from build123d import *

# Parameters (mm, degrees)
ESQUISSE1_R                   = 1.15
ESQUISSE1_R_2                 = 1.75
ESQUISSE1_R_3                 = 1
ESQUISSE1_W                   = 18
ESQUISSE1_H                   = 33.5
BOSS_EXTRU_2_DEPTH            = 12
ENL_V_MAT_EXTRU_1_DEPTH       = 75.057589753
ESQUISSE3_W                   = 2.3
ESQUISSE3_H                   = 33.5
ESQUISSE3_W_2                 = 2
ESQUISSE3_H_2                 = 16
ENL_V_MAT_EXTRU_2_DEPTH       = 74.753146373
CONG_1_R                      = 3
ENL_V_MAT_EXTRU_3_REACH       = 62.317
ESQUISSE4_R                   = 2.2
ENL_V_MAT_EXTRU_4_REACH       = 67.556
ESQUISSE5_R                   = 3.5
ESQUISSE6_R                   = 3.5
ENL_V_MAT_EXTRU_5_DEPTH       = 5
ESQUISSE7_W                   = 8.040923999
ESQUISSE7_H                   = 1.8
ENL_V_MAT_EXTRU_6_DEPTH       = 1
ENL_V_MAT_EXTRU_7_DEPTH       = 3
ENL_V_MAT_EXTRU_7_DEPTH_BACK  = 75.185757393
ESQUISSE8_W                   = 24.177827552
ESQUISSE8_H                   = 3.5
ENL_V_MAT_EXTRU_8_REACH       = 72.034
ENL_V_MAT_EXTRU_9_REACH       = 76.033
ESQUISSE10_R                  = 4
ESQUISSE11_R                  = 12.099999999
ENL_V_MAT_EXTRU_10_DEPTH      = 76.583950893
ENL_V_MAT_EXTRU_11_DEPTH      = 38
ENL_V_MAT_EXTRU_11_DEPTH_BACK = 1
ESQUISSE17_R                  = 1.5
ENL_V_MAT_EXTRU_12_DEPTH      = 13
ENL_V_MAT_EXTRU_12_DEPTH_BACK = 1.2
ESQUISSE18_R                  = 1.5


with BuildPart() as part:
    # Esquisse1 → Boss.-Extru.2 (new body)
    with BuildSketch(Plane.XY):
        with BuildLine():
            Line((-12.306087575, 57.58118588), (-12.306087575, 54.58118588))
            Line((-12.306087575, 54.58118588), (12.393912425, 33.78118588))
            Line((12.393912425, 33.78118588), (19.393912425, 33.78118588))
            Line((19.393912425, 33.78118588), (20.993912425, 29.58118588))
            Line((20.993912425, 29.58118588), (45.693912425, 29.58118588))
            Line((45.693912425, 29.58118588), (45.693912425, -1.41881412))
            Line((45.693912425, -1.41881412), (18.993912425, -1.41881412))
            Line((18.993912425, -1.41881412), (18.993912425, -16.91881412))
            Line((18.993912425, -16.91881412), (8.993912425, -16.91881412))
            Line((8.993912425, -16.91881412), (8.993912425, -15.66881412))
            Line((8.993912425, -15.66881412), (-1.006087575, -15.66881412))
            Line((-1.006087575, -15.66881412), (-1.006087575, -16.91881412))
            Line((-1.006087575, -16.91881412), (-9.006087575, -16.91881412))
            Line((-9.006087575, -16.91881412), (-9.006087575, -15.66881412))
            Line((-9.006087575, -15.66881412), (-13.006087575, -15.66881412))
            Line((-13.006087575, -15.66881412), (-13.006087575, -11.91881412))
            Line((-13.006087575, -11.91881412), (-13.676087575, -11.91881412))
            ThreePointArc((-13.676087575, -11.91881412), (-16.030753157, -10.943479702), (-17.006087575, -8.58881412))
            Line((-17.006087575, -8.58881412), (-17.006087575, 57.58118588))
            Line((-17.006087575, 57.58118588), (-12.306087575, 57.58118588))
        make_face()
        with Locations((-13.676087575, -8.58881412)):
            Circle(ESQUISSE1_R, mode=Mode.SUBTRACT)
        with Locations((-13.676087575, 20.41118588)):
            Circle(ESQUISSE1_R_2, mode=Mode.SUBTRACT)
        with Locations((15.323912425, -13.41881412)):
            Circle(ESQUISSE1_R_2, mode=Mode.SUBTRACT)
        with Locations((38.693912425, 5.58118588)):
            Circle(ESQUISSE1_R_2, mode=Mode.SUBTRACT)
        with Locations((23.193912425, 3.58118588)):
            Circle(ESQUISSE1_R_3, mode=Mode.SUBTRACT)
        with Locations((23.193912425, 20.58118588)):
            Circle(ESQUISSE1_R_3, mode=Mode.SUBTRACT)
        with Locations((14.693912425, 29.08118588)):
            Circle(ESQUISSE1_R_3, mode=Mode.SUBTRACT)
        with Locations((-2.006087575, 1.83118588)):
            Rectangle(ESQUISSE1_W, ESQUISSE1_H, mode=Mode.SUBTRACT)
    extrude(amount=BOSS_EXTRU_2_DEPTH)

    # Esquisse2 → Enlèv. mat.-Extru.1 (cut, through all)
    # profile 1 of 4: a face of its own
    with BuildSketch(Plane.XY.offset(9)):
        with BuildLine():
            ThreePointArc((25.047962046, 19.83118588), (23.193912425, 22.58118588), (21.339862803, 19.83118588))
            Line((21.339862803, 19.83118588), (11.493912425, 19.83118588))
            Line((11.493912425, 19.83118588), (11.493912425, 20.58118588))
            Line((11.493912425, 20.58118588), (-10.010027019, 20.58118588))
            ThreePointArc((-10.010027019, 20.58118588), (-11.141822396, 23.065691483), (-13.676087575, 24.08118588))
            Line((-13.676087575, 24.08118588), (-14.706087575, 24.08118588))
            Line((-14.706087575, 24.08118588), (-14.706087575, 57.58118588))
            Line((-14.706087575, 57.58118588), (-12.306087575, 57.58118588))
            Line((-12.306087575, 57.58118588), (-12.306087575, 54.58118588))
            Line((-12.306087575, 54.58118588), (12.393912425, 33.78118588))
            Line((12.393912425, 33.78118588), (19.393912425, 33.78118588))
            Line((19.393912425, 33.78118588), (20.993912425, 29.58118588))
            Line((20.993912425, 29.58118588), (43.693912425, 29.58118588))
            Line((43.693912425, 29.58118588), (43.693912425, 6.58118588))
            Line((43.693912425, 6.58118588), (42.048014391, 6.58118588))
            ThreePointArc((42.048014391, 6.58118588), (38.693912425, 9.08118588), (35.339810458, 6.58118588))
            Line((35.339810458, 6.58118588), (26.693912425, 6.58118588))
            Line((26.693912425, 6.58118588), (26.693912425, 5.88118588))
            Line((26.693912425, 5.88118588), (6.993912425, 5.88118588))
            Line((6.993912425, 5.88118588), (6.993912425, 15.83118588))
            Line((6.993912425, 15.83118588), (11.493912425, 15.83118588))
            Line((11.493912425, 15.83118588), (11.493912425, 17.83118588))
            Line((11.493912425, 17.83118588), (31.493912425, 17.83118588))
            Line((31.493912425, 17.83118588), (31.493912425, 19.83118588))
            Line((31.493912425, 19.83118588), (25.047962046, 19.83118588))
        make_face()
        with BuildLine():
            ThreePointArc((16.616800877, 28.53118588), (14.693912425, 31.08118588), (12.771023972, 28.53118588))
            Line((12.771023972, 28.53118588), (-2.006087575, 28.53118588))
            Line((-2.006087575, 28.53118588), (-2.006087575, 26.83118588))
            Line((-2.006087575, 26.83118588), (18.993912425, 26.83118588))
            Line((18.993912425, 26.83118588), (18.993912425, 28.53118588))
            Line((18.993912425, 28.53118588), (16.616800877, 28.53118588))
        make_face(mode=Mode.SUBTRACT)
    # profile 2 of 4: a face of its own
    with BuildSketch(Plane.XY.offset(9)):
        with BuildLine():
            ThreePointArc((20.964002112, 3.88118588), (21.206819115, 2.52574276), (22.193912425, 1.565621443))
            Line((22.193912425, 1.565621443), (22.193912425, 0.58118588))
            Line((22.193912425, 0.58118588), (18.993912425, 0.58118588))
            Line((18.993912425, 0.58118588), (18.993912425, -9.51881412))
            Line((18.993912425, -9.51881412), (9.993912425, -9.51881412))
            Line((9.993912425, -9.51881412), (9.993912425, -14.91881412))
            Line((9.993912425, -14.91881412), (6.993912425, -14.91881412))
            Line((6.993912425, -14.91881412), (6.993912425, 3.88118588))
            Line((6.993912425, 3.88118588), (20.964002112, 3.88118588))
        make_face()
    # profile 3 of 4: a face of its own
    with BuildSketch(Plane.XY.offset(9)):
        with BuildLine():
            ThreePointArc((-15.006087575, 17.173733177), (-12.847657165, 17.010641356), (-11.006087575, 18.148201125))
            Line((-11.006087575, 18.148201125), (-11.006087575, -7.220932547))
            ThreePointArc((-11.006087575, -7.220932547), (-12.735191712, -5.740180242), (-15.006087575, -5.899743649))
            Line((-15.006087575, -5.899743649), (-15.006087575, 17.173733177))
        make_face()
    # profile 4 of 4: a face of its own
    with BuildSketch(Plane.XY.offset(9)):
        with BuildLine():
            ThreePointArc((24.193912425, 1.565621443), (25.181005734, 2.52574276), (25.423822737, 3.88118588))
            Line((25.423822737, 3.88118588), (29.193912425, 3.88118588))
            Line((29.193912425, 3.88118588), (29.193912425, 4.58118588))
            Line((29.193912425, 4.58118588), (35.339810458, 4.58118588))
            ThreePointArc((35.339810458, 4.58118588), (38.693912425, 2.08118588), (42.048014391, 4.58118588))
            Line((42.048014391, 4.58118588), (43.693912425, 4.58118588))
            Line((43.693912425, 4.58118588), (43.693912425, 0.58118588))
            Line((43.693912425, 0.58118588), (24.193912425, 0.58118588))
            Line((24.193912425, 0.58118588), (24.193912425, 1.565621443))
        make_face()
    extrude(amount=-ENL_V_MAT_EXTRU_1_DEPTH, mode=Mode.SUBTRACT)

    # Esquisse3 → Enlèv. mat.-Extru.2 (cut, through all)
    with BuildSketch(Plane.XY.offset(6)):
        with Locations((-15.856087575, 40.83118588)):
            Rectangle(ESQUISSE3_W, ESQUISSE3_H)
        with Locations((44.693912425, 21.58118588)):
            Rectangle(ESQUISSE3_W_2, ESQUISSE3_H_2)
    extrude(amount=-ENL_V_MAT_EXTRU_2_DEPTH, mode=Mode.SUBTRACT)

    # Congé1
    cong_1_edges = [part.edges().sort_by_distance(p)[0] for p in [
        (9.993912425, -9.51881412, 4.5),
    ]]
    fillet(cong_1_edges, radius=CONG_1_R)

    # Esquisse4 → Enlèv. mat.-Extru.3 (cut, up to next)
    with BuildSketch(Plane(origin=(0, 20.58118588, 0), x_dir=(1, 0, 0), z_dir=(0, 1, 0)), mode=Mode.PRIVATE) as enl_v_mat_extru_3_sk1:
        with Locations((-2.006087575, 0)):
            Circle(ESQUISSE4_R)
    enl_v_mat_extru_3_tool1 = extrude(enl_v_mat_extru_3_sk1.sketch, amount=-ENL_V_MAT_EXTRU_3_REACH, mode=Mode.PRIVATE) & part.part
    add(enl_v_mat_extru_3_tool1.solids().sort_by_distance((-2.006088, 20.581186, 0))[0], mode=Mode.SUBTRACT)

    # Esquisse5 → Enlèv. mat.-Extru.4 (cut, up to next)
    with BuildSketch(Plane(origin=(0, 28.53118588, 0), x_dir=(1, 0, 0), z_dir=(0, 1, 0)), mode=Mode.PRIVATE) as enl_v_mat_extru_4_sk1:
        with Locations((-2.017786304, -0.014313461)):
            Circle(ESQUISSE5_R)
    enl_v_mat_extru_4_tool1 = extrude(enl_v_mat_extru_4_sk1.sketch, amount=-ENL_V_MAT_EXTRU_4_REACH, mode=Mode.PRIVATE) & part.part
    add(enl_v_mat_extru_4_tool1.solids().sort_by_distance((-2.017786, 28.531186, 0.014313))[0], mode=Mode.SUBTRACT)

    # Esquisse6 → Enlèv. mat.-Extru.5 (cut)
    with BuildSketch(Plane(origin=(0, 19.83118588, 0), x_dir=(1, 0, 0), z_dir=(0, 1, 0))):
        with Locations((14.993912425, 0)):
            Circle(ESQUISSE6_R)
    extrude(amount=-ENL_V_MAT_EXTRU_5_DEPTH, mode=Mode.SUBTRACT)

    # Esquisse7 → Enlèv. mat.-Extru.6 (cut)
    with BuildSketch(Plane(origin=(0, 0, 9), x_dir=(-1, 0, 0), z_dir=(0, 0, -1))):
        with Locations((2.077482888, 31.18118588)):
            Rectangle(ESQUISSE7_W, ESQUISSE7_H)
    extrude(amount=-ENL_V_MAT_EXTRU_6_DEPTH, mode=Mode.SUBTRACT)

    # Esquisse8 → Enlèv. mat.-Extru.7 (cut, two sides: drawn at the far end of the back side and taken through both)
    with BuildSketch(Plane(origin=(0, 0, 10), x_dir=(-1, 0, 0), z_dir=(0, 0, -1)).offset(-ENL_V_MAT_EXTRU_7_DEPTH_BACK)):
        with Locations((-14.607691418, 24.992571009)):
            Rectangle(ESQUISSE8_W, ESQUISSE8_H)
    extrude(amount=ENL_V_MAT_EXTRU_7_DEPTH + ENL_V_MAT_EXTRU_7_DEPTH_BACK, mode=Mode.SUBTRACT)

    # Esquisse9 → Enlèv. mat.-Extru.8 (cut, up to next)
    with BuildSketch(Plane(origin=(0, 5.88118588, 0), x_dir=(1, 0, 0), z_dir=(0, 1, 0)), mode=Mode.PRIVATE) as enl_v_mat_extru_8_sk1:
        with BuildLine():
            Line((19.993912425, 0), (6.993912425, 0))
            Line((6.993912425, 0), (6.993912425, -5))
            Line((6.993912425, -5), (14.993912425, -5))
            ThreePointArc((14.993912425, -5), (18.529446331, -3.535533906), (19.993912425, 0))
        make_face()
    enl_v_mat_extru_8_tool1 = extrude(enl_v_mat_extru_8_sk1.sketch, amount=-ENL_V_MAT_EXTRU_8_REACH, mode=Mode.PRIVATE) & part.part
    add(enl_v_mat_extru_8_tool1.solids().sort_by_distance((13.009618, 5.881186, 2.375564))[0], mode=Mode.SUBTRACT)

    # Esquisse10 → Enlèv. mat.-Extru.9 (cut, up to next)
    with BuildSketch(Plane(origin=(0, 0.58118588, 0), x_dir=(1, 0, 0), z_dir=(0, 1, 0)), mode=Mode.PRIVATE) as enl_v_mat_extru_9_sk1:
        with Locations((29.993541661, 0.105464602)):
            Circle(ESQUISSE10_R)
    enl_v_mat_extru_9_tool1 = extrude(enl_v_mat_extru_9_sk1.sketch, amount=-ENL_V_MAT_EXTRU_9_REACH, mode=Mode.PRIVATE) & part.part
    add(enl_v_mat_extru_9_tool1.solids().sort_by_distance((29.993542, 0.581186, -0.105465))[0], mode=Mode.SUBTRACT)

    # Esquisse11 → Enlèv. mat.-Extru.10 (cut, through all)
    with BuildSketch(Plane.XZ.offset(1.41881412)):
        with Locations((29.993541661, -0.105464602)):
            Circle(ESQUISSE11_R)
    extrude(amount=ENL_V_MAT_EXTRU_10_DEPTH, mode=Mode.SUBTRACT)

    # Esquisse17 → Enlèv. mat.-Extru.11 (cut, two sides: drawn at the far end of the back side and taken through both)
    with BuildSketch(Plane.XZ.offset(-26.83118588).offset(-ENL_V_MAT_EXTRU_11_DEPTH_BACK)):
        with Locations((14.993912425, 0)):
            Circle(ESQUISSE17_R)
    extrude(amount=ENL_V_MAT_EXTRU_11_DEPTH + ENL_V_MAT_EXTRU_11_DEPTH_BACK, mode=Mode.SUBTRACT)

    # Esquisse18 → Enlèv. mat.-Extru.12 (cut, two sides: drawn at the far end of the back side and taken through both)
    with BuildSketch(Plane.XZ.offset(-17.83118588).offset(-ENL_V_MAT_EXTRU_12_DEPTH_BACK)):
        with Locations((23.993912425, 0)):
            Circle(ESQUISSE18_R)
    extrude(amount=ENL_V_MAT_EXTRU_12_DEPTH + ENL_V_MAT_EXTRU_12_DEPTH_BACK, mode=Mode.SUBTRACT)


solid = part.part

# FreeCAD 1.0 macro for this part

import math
import FreeCAD as App
import Part
import Sketcher

V = App.Vector
Q = App.Units.Quantity


def edges_at(feature, points):
    """Names of the edges that pass closest to the given points."""
    edges = feature.Shape.Edges
    near = lambda p: min(range(len(edges)), key=lambda i: edges[i].distToShape(Part.Vertex(*p))[0])
    return sorted({f"Edge{near(p) + 1}" for p in points})


def add_polygon(sketch, points):
    """Adds a closed chain of lines whose ends are joined by coincident constraints."""
    first, n = sketch.GeometryCount, len(points)
    for a, b in zip(points, points[1:] + points[:1]):
        sketch.addGeometry(Part.LineSegment(App.Vector(*a, 0), App.Vector(*b, 0)), False)
    for i in range(n):
        sketch.addConstraint(Sketcher.Constraint("Coincident", first + i, 2, first + (i + 1) % n, 1))

doc = App.newDocument("Part")
body = doc.addObject("PartDesign::Body", "Body")

# Sketch on XY plane
sketch1 = doc.addObject("Sketcher::SketchObject", "Sketch")
body.addObject(sketch1)
sketch1.AttachmentSupport = (doc.XY_Plane, [""])
sketch1.MapMode = "FlatFace"
sketch1.addGeometry(Part.LineSegment(V(-12.3, 54.6, 0), V(-12.3, 57.6, 0)), False)  # 0
sketch1.addGeometry(Part.LineSegment(V(-12.3, 57.6, 0), V(-17, 57.6, 0)), False)  # 1
sketch1.addGeometry(Part.LineSegment(V(-17, 57.6, 0), V(-17, -8.6, 0)), False)  # 2
sketch1.addGeometry(Part.ArcOfCircle(Part.Circle(V(-13.7, -8.6, 0), V(0, 0, 1), 3.3), math.radians(180), math.radians(270)), False)  # 3
sketch1.addGeometry(Part.LineSegment(V(-13.7, -11.9, 0), V(-13, -11.9, 0)), False)  # 4
sketch1.addGeometry(Part.LineSegment(V(-13, -11.9, 0), V(-13, -15.7, 0)), False)  # 5
sketch1.addGeometry(Part.LineSegment(V(-13, -15.7, 0), V(-9, -15.7, 0)), False)  # 6
sketch1.addGeometry(Part.LineSegment(V(-9, -15.7, 0), V(-9, -16.9, 0)), False)  # 7
sketch1.addGeometry(Part.LineSegment(V(-9, -16.9, 0), V(-1, -16.9, 0)), False)  # 8
sketch1.addGeometry(Part.LineSegment(V(-1, -16.9, 0), V(-1, -15.7, 0)), False)  # 9
sketch1.addGeometry(Part.LineSegment(V(-1, -15.7, 0), V(9, -15.7, 0)), False)  # 10
sketch1.addGeometry(Part.LineSegment(V(9, -15.7, 0), V(9, -16.9, 0)), False)  # 11
sketch1.addGeometry(Part.LineSegment(V(9, -16.9, 0), V(19, -16.9, 0)), False)  # 12
sketch1.addGeometry(Part.LineSegment(V(19, -16.9, 0), V(19, -1.4, 0)), False)  # 13
sketch1.addGeometry(Part.LineSegment(V(19, -1.4, 0), V(45.7, -1.4, 0)), False)  # 14
sketch1.addGeometry(Part.LineSegment(V(45.7, -1.4, 0), V(45.7, 29.6, 0)), False)  # 15
sketch1.addGeometry(Part.LineSegment(V(45.7, 29.6, 0), V(21, 29.6, 0)), False)  # 16
sketch1.addGeometry(Part.LineSegment(V(21, 29.6, 0), V(19.4, 33.8, 0)), False)  # 17
sketch1.addGeometry(Part.LineSegment(V(19.4, 33.8, 0), V(12.4, 33.8, 0)), False)  # 18
sketch1.addGeometry(Part.LineSegment(V(12.4, 33.8, 0), V(-12.3, 54.6, 0)), False)  # 19
sketch1.addGeometry(Part.Circle(V(15.3, -13.4, 0), V(0, 0, 1), 1.8), False)  # 20
sketch1.addGeometry(Part.Circle(V(38.7, 5.6, 0), V(0, 0, 1), 1.8), False)  # 21
sketch1.addGeometry(Part.Circle(V(23.2, 3.6, 0), V(0, 0, 1), 1), False)  # 22
sketch1.addGeometry(Part.Circle(V(-13.7, -8.6, 0), V(0, 0, 1), 1.1), False)  # 23
add_polygon(sketch1, [(-11, -14.9), (-11, 18.6), (7, 18.6), (7, -14.9)])  # lines 24-27
sketch1.addGeometry(Part.Circle(V(23.2, 20.6, 0), V(0, 0, 1), 1), False)  # 28
sketch1.addGeometry(Part.Circle(V(14.7, 29.1, 0), V(0, 0, 1), 1), False)  # 29
sketch1.addGeometry(Part.Circle(V(-13.7, 20.4, 0), V(0, 0, 1), 1.8), False)  # 30
sketch1.addConstraint([
    Sketcher.Constraint("Coincident", 0, 2, 1, 1),
    Sketcher.Constraint("Coincident", 1, 2, 2, 1),
    Sketcher.Constraint("Tangent", 2, 2, 3, 1),
    Sketcher.Constraint("Tangent", 3, 2, 4, 1),
    Sketcher.Constraint("Coincident", 4, 2, 5, 1),
    Sketcher.Constraint("Coincident", 5, 2, 6, 1),
    Sketcher.Constraint("Coincident", 6, 2, 7, 1),
    Sketcher.Constraint("Coincident", 7, 2, 8, 1),
    Sketcher.Constraint("Coincident", 8, 2, 9, 1),
    Sketcher.Constraint("Coincident", 9, 2, 10, 1),
    Sketcher.Constraint("Coincident", 10, 2, 11, 1),
    Sketcher.Constraint("Coincident", 11, 2, 12, 1),
    Sketcher.Constraint("Coincident", 12, 2, 13, 1),
    Sketcher.Constraint("Coincident", 13, 2, 14, 1),
    Sketcher.Constraint("Coincident", 14, 2, 15, 1),
    Sketcher.Constraint("Coincident", 15, 2, 16, 1),
    Sketcher.Constraint("Coincident", 16, 2, 17, 1),
    Sketcher.Constraint("Coincident", 17, 2, 18, 1),
    Sketcher.Constraint("Coincident", 18, 2, 19, 1),
    Sketcher.Constraint("Coincident", 19, 2, 0, 1),
    Sketcher.Constraint("Vertical", 0),
    Sketcher.Constraint("Horizontal", 1),
    Sketcher.Constraint("Vertical", 2),
    Sketcher.Constraint("Horizontal", 4),
    Sketcher.Constraint("Vertical", 5),
    Sketcher.Constraint("Horizontal", 6),
    Sketcher.Constraint("Vertical", 7),
    Sketcher.Constraint("Horizontal", 8),
    Sketcher.Constraint("Vertical", 9),
    Sketcher.Constraint("Horizontal", 10),
    Sketcher.Constraint("Vertical", 11),
    Sketcher.Constraint("Horizontal", 12),
    Sketcher.Constraint("Vertical", 13),
    Sketcher.Constraint("Horizontal", 14),
    Sketcher.Constraint("Vertical", 15),
    Sketcher.Constraint("Horizontal", 16),
    Sketcher.Constraint("Horizontal", 18),
    Sketcher.Constraint("Vertical", 24),
    Sketcher.Constraint("Horizontal", 25),
    Sketcher.Constraint("Vertical", 26),
    Sketcher.Constraint("Horizontal", 27),
    Sketcher.Constraint("Coincident", 23, 3, 3, 3),
    Sketcher.Constraint("Equal", 20, 21),
    Sketcher.Constraint("Equal", 22, 28),
    Sketcher.Constraint("Equal", 28, 29),
    Sketcher.Constraint("Equal", 21, 30),
    Sketcher.Constraint("Horizontal", 6, 2, 9, 2),
    Sketcher.Constraint("Horizontal", 8, 2, 11, 2),
    Sketcher.Constraint("Vertical", 22, 3, 28, 3),
    Sketcher.Constraint("Vertical", 23, 3, 30, 3),
    Sketcher.Constraint("Equal", 10, 12),
    Sketcher.Constraint("Diameter", 22, Q("2 mm")),
    Sketcher.Constraint("Diameter", 20, Q("3.5 mm")),
    Sketcher.Constraint("Diameter", 23, Q("2.3 mm")),
    Sketcher.Constraint("DistanceX", 6, 1, 6, 2, Q("4 mm")),
    Sketcher.Constraint("DistanceX", 8, 1, 8, 2, Q("8 mm")),
    Sketcher.Constraint("DistanceX", 10, 1, 10, 2, Q("10 mm")),
    Sketcher.Constraint("DistanceX", 18, 2, 18, 1, Q("7 mm")),
    Sketcher.Constraint("DistanceX", 25, 1, 25, 2, Q("18 mm")),
    Sketcher.Constraint("DistanceY", 0, 1, 0, 2, Q("3 mm")),
    Sketcher.Constraint("DistanceY", 15, 1, 15, 2, Q("31 mm")),
    Sketcher.Constraint("Radius", 3, Q("3.33 mm")),
    Sketcher.Constraint("DistanceX", 1, 2, 1, 1, Q("4.7 mm")),
    Sketcher.Constraint("DistanceX", 14, 1, 14, 2, Q("26.7 mm")),
    Sketcher.Constraint("DistanceX", 16, 2, 16, 1, Q("24.7 mm")),
    Sketcher.Constraint("DistanceY", 13, 1, 13, 2, Q("15.5 mm")),
    Sketcher.Constraint("DistanceY", 24, 1, 24, 2, Q("33.5 mm")),
    Sketcher.Constraint("DistanceX", 3, 3, 20, 3, Q("29 mm")),
    Sketcher.Constraint("DistanceY", 20, 3, 21, 3, Q("19 mm")),
    Sketcher.Constraint("DistanceY", 22, 3, 21, 3, Q("2 mm")),
    Sketcher.Constraint("DistanceY", 22, 3, 28, 3, Q("17 mm")),
    Sketcher.Constraint("DistanceX", 29, 3, 21, 3, Q("24 mm")),
    Sketcher.Constraint("DistanceY", 23, 3, 30, 3, Q("29 mm")),
    Sketcher.Constraint("DistanceX", 0, 2, 29, 3, Q("27 mm")),
    Sketcher.Constraint("DistanceY", 28, 3, 0, 2, Q("37 mm")),
    Sketcher.Constraint("DistanceX", 2, 2, 4, 2, Q("4 mm")),
    Sketcher.Constraint("DistanceY", 7, 2, 4, 2, Q("5 mm")),
    Sketcher.Constraint("DistanceY", 13, 2, 22, 3, Q("5 mm")),
    Sketcher.Constraint("DistanceX", 2, 2, 24, 2, Q("6 mm")),
    Sketcher.Constraint("DistanceY", 25, 2, 28, 3, Q("2 mm")),
    Sketcher.Constraint("DistanceY", 5, 2, 5, 1, Q("3.75 mm")),
    Sketcher.Constraint("DistanceX", 22, 3, 21, 3, Q("15.5 mm")),
    Sketcher.Constraint("DistanceY", 28, 3, 29, 3, Q("8.5 mm")),
    Sketcher.Constraint("DistanceX", 17, 2, 16, 2, Q("1.6 mm")),
    Sketcher.Constraint("DistanceY", 16, 2, 17, 2, Q("4.2 mm")),
    Sketcher.Constraint("DistanceX", 3, 3, -1, 1, Q("13.676088 mm")),
    Sketcher.Constraint("DistanceY", 3, 3, -1, 1, Q("8.588814 mm")),
])
pad1 = doc.addObject("PartDesign::Pad", "Pad")
body.addObject(pad1)
pad1.Profile = sketch1
pad1.Length = 12

# Sketch on XY plane
sketch2 = doc.addObject("Sketcher::SketchObject", "Sketch001")
body.addObject(sketch2)
sketch2.AttachmentSupport = (doc.XY_Plane, [""])
sketch2.MapMode = "FlatFace"
sketch2.AttachmentOffset = App.Placement(V(0, 0, 9), App.Rotation())
sketch2.addGeometry([
    Part.ArcOfCircle(Part.Circle(V(23.193912, 20.581186, 0), V(0, 0, 1), 2), math.radians(-22.024313), math.radians(202.024313)),  # 0
    Part.LineSegment(V(25.047962, 19.831186, 0), V(31.493912, 19.831186, 0)),  # 1
    Part.LineSegment(V(31.493912, 19.831186, 0), V(31.493912, 17.831186, 0)),  # 2
    Part.LineSegment(V(31.493912, 17.831186, 0), V(11.493912, 17.831186, 0)),  # 3
    Part.LineSegment(V(11.493912, 17.831186, 0), V(11.493912, 15.831186, 0)),  # 4
    Part.LineSegment(V(11.493912, 15.831186, 0), V(6.993912, 15.831186, 0)),  # 5
    Part.LineSegment(V(6.993912, 15.831186, 0), V(6.993912, 5.881186, 0)),  # 6
    Part.LineSegment(V(6.993912, 5.881186, 0), V(26.693912, 5.881186, 0)),  # 7
    Part.LineSegment(V(26.693912, 5.881186, 0), V(26.693912, 6.581186, 0)),  # 8
    Part.LineSegment(V(26.693912, 6.581186, 0), V(35.33981, 6.581186, 0)),  # 9
    Part.ArcOfCircle(Part.Circle(V(38.693912, 5.581186, 0), V(0, 0, 1), 3.5), math.radians(16.60155), math.radians(163.39845)),  # 10
    Part.LineSegment(V(42.048014, 6.581186, 0), V(43.693912, 6.581186, 0)),  # 11
    Part.LineSegment(V(43.693912, 6.581186, 0), V(43.693912, 29.581186, 0)),  # 12
    Part.LineSegment(V(43.693912, 29.581186, 0), V(20.993912, 29.581186, 0)),  # 13
    Part.LineSegment(V(20.993912, 29.581186, 0), V(19.393912, 33.781186, 0)),  # 14
    Part.LineSegment(V(19.393912, 33.781186, 0), V(12.393912, 33.781186, 0)),  # 15
    Part.LineSegment(V(12.393912, 33.781186, 0), V(-12.306088, 54.581186, 0)),  # 16
    Part.LineSegment(V(-12.306088, 54.581186, 0), V(-12.306088, 57.581186, 0)),  # 17
    Part.LineSegment(V(-12.306088, 57.581186, 0), V(-14.706088, 57.581186, 0)),  # 18
    Part.LineSegment(V(-14.706088, 57.581186, 0), V(-14.706088, 24.081186, 0)),  # 19
    Part.LineSegment(V(-14.706088, 24.081186, 0), V(-13.676088, 24.081186, 0)),  # 20
    Part.ArcOfCircle(Part.Circle(V(-13.676088, 20.411186, 0), V(0, 0, 1), 3.67), math.radians(2.654978), math.radians(90)),  # 21
    Part.LineSegment(V(-10.010027, 20.581186, 0), V(11.493912, 20.581186, 0)),  # 22
    Part.LineSegment(V(11.493912, 20.581186, 0), V(11.493912, 19.831186, 0)),  # 23
    Part.LineSegment(V(11.493912, 19.831186, 0), V(21.339863, 19.831186, 0)),  # 24
    Part.LineSegment(V(16.616801, 28.531186, 0), V(18.993912, 28.531186, 0)),  # 25
    Part.LineSegment(V(18.993912, 28.531186, 0), V(18.993912, 26.831186, 0)),  # 26
    Part.LineSegment(V(18.993912, 26.831186, 0), V(-2.006088, 26.831186, 0)),  # 27
    Part.LineSegment(V(-2.006088, 26.831186, 0), V(-2.006088, 28.531186, 0)),  # 28
    Part.LineSegment(V(-2.006088, 28.531186, 0), V(12.771024, 28.531186, 0)),  # 29
    Part.ArcOfCircle(Part.Circle(V(14.693912, 29.081186, 0), V(0, 0, 1), 2), math.radians(-15.962014), math.radians(195.962014)),  # 30
    Part.ArcOfCircle(Part.Circle(V(23.193912, 3.581186, 0), V(0, 0, 1), 2.25), math.radians(172.337744), math.radians(243.6122)),  # 31
    Part.LineSegment(V(20.964002, 3.881186, 0), V(6.993912, 3.881186, 0)),  # 32
    Part.LineSegment(V(6.993912, 3.881186, 0), V(6.993912, -14.918814, 0)),  # 33
    Part.LineSegment(V(6.993912, -14.918814, 0), V(9.993912, -14.918814, 0)),  # 34
    Part.LineSegment(V(9.993912, -14.918814, 0), V(9.993912, -9.518814, 0)),  # 35
    Part.LineSegment(V(9.993912, -9.518814, 0), V(18.993912, -9.518814, 0)),  # 36
    Part.LineSegment(V(18.993912, -9.518814, 0), V(18.993912, 0.581186, 0)),  # 37
    Part.LineSegment(V(18.993912, 0.581186, 0), V(22.193912, 0.581186, 0)),  # 38
    Part.LineSegment(V(22.193912, 0.581186, 0), V(22.193912, 1.565621, 0)),  # 39
    Part.ArcOfCircle(Part.Circle(V(-13.676088, 20.411186, 0), V(0, 0, 1), 3.5), math.radians(-112.333683), math.radians(-40.283271)),  # 40
    Part.LineSegment(V(-15.006088, 17.173733, 0), V(-15.006088, -5.899744, 0)),  # 41
    Part.ArcOfCircle(Part.Circle(V(-13.676088, -8.588814, 0), V(0, 0, 1), 3), math.radians(27.126753), math.radians(116.316755)),  # 42
    Part.LineSegment(V(-11.006088, -7.220933, 0), V(-11.006088, 18.148201, 0)),  # 43
    Part.ArcOfCircle(Part.Circle(V(23.193912, 3.581186, 0), V(0, 0, 1), 2.25), math.radians(-63.6122), math.radians(7.662256)),  # 44
    Part.LineSegment(V(24.193912, 1.565621, 0), V(24.193912, 0.581186, 0)),  # 45
    Part.LineSegment(V(24.193912, 0.581186, 0), V(43.693912, 0.581186, 0)),  # 46
    Part.LineSegment(V(43.693912, 0.581186, 0), V(43.693912, 4.581186, 0)),  # 47
    Part.LineSegment(V(43.693912, 4.581186, 0), V(42.048014, 4.581186, 0)),  # 48
    Part.ArcOfCircle(Part.Circle(V(38.693912, 5.581186, 0), V(0, 0, 1), 3.5), math.radians(-163.39845), math.radians(-16.60155)),  # 49
    Part.LineSegment(V(35.33981, 4.581186, 0), V(29.193912, 4.581186, 0)),  # 50
    Part.LineSegment(V(29.193912, 4.581186, 0), V(29.193912, 3.881186, 0)),  # 51
    Part.LineSegment(V(29.193912, 3.881186, 0), V(25.423823, 3.881186, 0)),  # 52
], False)
sketch2.addConstraint([
    Sketcher.Constraint("Coincident", 0, 1, 1, 1),
    Sketcher.Constraint("Coincident", 1, 2, 2, 1),
    Sketcher.Constraint("Coincident", 2, 2, 3, 1),
    Sketcher.Constraint("Coincident", 3, 2, 4, 1),
    Sketcher.Constraint("Coincident", 4, 2, 5, 1),
    Sketcher.Constraint("Coincident", 5, 2, 6, 1),
    Sketcher.Constraint("Coincident", 6, 2, 7, 1),
    Sketcher.Constraint("Coincident", 7, 2, 8, 1),
    Sketcher.Constraint("Coincident", 8, 2, 9, 1),
    Sketcher.Constraint("Coincident", 9, 2, 10, 2),
    Sketcher.Constraint("Coincident", 10, 1, 11, 1),
    Sketcher.Constraint("Coincident", 11, 2, 12, 1),
    Sketcher.Constraint("Coincident", 12, 2, 13, 1),
    Sketcher.Constraint("Coincident", 13, 2, 14, 1),
    Sketcher.Constraint("Coincident", 14, 2, 15, 1),
    Sketcher.Constraint("Coincident", 15, 2, 16, 1),
    Sketcher.Constraint("Coincident", 16, 2, 17, 1),
    Sketcher.Constraint("Coincident", 17, 2, 18, 1),
    Sketcher.Constraint("Coincident", 18, 2, 19, 1),
    Sketcher.Constraint("Coincident", 19, 2, 20, 1),
    Sketcher.Constraint("Coincident", 20, 2, 21, 2),
    Sketcher.Constraint("Coincident", 21, 1, 22, 1),
    Sketcher.Constraint("Coincident", 22, 2, 23, 1),
    Sketcher.Constraint("Coincident", 23, 2, 24, 1),
    Sketcher.Constraint("Coincident", 24, 2, 0, 2),
    Sketcher.Constraint("Coincident", 25, 2, 26, 1),
    Sketcher.Constraint("Coincident", 26, 2, 27, 1),
    Sketcher.Constraint("Coincident", 27, 2, 28, 1),
    Sketcher.Constraint("Coincident", 28, 2, 29, 1),
    Sketcher.Constraint("Coincident", 29, 2, 30, 2),
    Sketcher.Constraint("Coincident", 30, 1, 25, 1),
    Sketcher.Constraint("Coincident", 31, 1, 32, 1),
    Sketcher.Constraint("Coincident", 32, 2, 33, 1),
    Sketcher.Constraint("Coincident", 33, 2, 34, 1),
    Sketcher.Constraint("Coincident", 34, 2, 35, 1),
    Sketcher.Constraint("Coincident", 35, 2, 36, 1),
    Sketcher.Constraint("Coincident", 36, 2, 37, 1),
    Sketcher.Constraint("Coincident", 37, 2, 38, 1),
    Sketcher.Constraint("Coincident", 38, 2, 39, 1),
    Sketcher.Constraint("Coincident", 39, 2, 31, 2),
    Sketcher.Constraint("Coincident", 40, 1, 41, 1),
    Sketcher.Constraint("Coincident", 41, 2, 42, 2),
    Sketcher.Constraint("Coincident", 42, 1, 43, 1),
    Sketcher.Constraint("Coincident", 43, 2, 40, 2),
    Sketcher.Constraint("Coincident", 44, 1, 45, 1),
    Sketcher.Constraint("Coincident", 45, 2, 46, 1),
    Sketcher.Constraint("Coincident", 46, 2, 47, 1),
    Sketcher.Constraint("Coincident", 47, 2, 48, 1),
    Sketcher.Constraint("Coincident", 48, 2, 49, 2),
    Sketcher.Constraint("Coincident", 49, 1, 50, 1),
    Sketcher.Constraint("Coincident", 50, 2, 51, 1),
    Sketcher.Constraint("Coincident", 51, 2, 52, 1),
    Sketcher.Constraint("Coincident", 52, 2, 44, 2),
    Sketcher.Constraint("Horizontal", 1),
    Sketcher.Constraint("Vertical", 2),
    Sketcher.Constraint("Horizontal", 3),
    Sketcher.Constraint("Vertical", 4),
    Sketcher.Constraint("Horizontal", 5),
    Sketcher.Constraint("Vertical", 6),
    Sketcher.Constraint("Horizontal", 7),
    Sketcher.Constraint("Vertical", 8),
    Sketcher.Constraint("Horizontal", 9),
    Sketcher.Constraint("Horizontal", 11),
    Sketcher.Constraint("Vertical", 12),
    Sketcher.Constraint("Horizontal", 13),
    Sketcher.Constraint("Horizontal", 15),
    Sketcher.Constraint("Vertical", 17),
    Sketcher.Constraint("Horizontal", 18),
    Sketcher.Constraint("Vertical", 19),
    Sketcher.Constraint("Horizontal", 20),
    Sketcher.Constraint("Horizontal", 22),
    Sketcher.Constraint("Vertical", 23),
    Sketcher.Constraint("Horizontal", 24),
    Sketcher.Constraint("Horizontal", 25),
    Sketcher.Constraint("Vertical", 26),
    Sketcher.Constraint("Horizontal", 27),
    Sketcher.Constraint("Vertical", 28),
    Sketcher.Constraint("Horizontal", 29),
    Sketcher.Constraint("Horizontal", 32),
    Sketcher.Constraint("Vertical", 33),
    Sketcher.Constraint("Horizontal", 34),
    Sketcher.Constraint("Vertical", 35),
    Sketcher.Constraint("Horizontal", 36),
    Sketcher.Constraint("Vertical", 37),
    Sketcher.Constraint("Horizontal", 38),
    Sketcher.Constraint("Vertical", 39),
    Sketcher.Constraint("Vertical", 41),
    Sketcher.Constraint("Vertical", 43),
    Sketcher.Constraint("Vertical", 45),
    Sketcher.Constraint("Horizontal", 46),
    Sketcher.Constraint("Vertical", 47),
    Sketcher.Constraint("Horizontal", 48),
    Sketcher.Constraint("Horizontal", 50),
    Sketcher.Constraint("Vertical", 51),
    Sketcher.Constraint("Horizontal", 52),
    Sketcher.Constraint("Coincident", 40, 3, 21, 3),
    Sketcher.Constraint("Coincident", 44, 3, 31, 3),
    Sketcher.Constraint("Coincident", 49, 3, 10, 3),
    Sketcher.Constraint("Radius", 0, Q("2 mm")),
    Sketcher.Constraint("Radius", 30, Q("2 mm")),
    Sketcher.Constraint("Radius", 42, Q("3 mm")),
    Sketcher.Constraint("Radius", 10, Q("3.5 mm")),
    Sketcher.Constraint("Radius", 40, Q("3.5 mm")),
    Sketcher.Constraint("Radius", 49, Q("3.5 mm")),
    Sketcher.Constraint("DistanceX", 3, 2, 3, 1, Q("20 mm")),
    Sketcher.Constraint("DistanceX", 15, 2, 15, 1, Q("7 mm")),
    Sketcher.Constraint("DistanceX", 27, 2, 27, 1, Q("21 mm")),
    Sketcher.Constraint("DistanceX", 34, 1, 34, 2, Q("3 mm")),
    Sketcher.Constraint("DistanceX", 36, 1, 36, 2, Q("9 mm")),
    Sketcher.Constraint("DistanceY", 2, 2, 2, 1, Q("2 mm")),
    Sketcher.Constraint("DistanceY", 4, 2, 4, 1, Q("2 mm")),
    Sketcher.Constraint("DistanceY", 12, 1, 12, 2, Q("23 mm")),
    Sketcher.Constraint("DistanceY", 17, 1, 17, 2, Q("3 mm")),
    Sketcher.Constraint("DistanceY", 47, 1, 47, 2, Q("4 mm")),
    Sketcher.Constraint("Radius", 21, Q("3.67 mm")),
    Sketcher.Constraint("Radius", 31, Q("2.25 mm")),
    Sketcher.Constraint("Radius", 44, Q("2.25 mm")),
    Sketcher.Constraint("DistanceX", 5, 2, 5, 1, Q("4.5 mm")),
    Sketcher.Constraint("DistanceX", 7, 1, 7, 2, Q("19.7 mm")),
    Sketcher.Constraint("DistanceX", 13, 2, 13, 1, Q("22.7 mm")),
    Sketcher.Constraint("DistanceX", 18, 2, 18, 1, Q("2.4 mm")),
    Sketcher.Constraint("DistanceX", 38, 1, 38, 2, Q("3.2 mm")),
    Sketcher.Constraint("DistanceX", 46, 1, 46, 2, Q("19.5 mm")),
    Sketcher.Constraint("DistanceY", 8, 1, 8, 2, Q("0.7 mm")),
    Sketcher.Constraint("DistanceY", 19, 2, 19, 1, Q("33.5 mm")),
    Sketcher.Constraint("DistanceY", 26, 2, 26, 1, Q("1.7 mm")),
    Sketcher.Constraint("DistanceY", 28, 1, 28, 2, Q("1.7 mm")),
    Sketcher.Constraint("DistanceY", 33, 2, 33, 1, Q("18.8 mm")),
    Sketcher.Constraint("DistanceY", 35, 1, 35, 2, Q("5.4 mm")),
    Sketcher.Constraint("DistanceY", 37, 1, 37, 2, Q("10.1 mm")),
    Sketcher.Constraint("DistanceY", 51, 2, 51, 1, Q("0.7 mm")),
    Sketcher.Constraint("DistanceX", 20, 1, 20, 2, Q("1.03 mm")),
    Sketcher.Constraint("DistanceY", 6, 2, 6, 1, Q("9.95 mm")),
    Sketcher.Constraint("DistanceY", 23, 2, 23, 1, Q("0.75 mm")),
    Sketcher.Constraint("DistanceX", 9, 1, 9, 2, Q("8.645898 mm")),
    Sketcher.Constraint("DistanceX", 11, 1, 11, 2, Q("1.645898 mm")),
    Sketcher.Constraint("DistanceX", 48, 2, 48, 1, Q("1.645898 mm")),
    Sketcher.Constraint("DistanceX", 50, 2, 50, 1, Q("6.145898 mm")),
    Sketcher.Constraint("DistanceX", 1, 1, 1, 2, Q("6.44595 mm")),
    Sketcher.Constraint("DistanceX", 22, 1, 22, 2, Q("21.503939 mm")),
    Sketcher.Constraint("DistanceX", 24, 1, 24, 2, Q("9.84595 mm")),
    Sketcher.Constraint("DistanceX", 25, 1, 25, 2, Q("2.377112 mm")),
    Sketcher.Constraint("DistanceX", 29, 1, 29, 2, Q("14.777112 mm")),
    Sketcher.Constraint("DistanceX", 32, 2, 32, 1, Q("13.97009 mm")),
    Sketcher.Constraint("DistanceX", 52, 2, 52, 1, Q("3.77009 mm")),
    Sketcher.Constraint("DistanceX", -1, 1, 30, 1, Q("16.616801 mm")),
    Sketcher.Constraint("DistanceY", -1, 1, 43, 2, Q("18.148201 mm")),
    Sketcher.Constraint("Distance", 14, Q("4.494441 mm")),
    Sketcher.Constraint("Distance", 16, Q("32.29133 mm")),
    Sketcher.Constraint("DistanceY", 39, 1, 39, 2, Q("0.984436 mm")),
    Sketcher.Constraint("DistanceY", 41, 2, 41, 1, Q("23.073477 mm")),
    Sketcher.Constraint("DistanceY", 43, 1, 43, 2, Q("25.369134 mm")),
    Sketcher.Constraint("DistanceY", 45, 2, 45, 1, Q("0.984436 mm")),
    Sketcher.Constraint("DistanceX", -1, 1, 9, 2, Q("35.33981 mm")),
    Sketcher.Constraint("DistanceY", -1, 1, 39, 2, Q("1.565621 mm")),
    Sketcher.Constraint("DistanceY", -1, 1, 44, 1, Q("1.565621 mm")),
    Sketcher.Constraint("DistanceX", -1, 1, 49, 1, Q("35.33981 mm")),
    Sketcher.Constraint("DistanceX", -1, 1, 0, 3, Q("23.193912 mm")),
    Sketcher.Constraint("DistanceY", -1, 1, 0, 3, Q("20.581186 mm")),
    Sketcher.Constraint("DistanceX", 21, 3, -1, 1, Q("13.676088 mm")),
    Sketcher.Constraint("DistanceY", -1, 1, 21, 3, Q("20.411186 mm")),
    Sketcher.Constraint("DistanceY", -1, 1, 30, 3, Q("29.081186 mm")),
    Sketcher.Constraint("DistanceX", 42, 3, -1, 1, Q("13.676088 mm")),
    Sketcher.Constraint("DistanceX", -1, 1, 10, 1, Q("42.048014 mm")),
    Sketcher.Constraint("DistanceX", -1, 1, 14, 2, Q("19.393912 mm")),
])
pocket1 = doc.addObject("PartDesign::Pocket", "Pocket")
body.addObject(pocket1)
pocket1.Profile = sketch2
pocket1.Length = 75.05759

# Sketch on XY plane
sketch3 = doc.addObject("Sketcher::SketchObject", "Sketch002")
body.addObject(sketch3)
sketch3.AttachmentSupport = (doc.XY_Plane, [""])
sketch3.MapMode = "FlatFace"
sketch3.AttachmentOffset = App.Placement(V(0, 0, 6), App.Rotation())
add_polygon(sketch3, [(-17, 57.6), (-17, 24.1), (-14.7, 24.1), (-14.7, 57.6)])  # lines 0-3
add_polygon(sketch3, [(43.7, 29.6), (43.7, 13.6), (45.7, 13.6), (45.7, 29.6)])  # lines 4-7
sketch3.addConstraint([
    Sketcher.Constraint("Vertical", 0),
    Sketcher.Constraint("Horizontal", 1),
    Sketcher.Constraint("Vertical", 2),
    Sketcher.Constraint("Horizontal", 3),
    Sketcher.Constraint("Vertical", 4),
    Sketcher.Constraint("Horizontal", 5),
    Sketcher.Constraint("Vertical", 6),
    Sketcher.Constraint("Horizontal", 7),
    Sketcher.Constraint("DistanceX", 5, 1, 5, 2, Q("2 mm")),
    Sketcher.Constraint("DistanceY", 4, 2, 4, 1, Q("16 mm")),
    Sketcher.Constraint("DistanceX", 1, 1, 1, 2, Q("2.3 mm")),
    Sketcher.Constraint("DistanceY", 0, 2, 0, 1, Q("33.5 mm")),
    Sketcher.Constraint("DistanceY", 4, 2, 2, 2, Q("44 mm")),
    Sketcher.Constraint("DistanceX", 1, 2, 4, 2, Q("58.4 mm")),
    Sketcher.Constraint("DistanceX", 0, 2, -1, 1, Q("17.006088 mm")),
    Sketcher.Constraint("DistanceY", -1, 1, 0, 2, Q("24.081186 mm")),
])
pocket2 = doc.addObject("PartDesign::Pocket", "Pocket001")
body.addObject(pocket2)
pocket2.Profile = sketch3
pocket2.Type = "ThroughAll"
doc.recompute()

fillet = doc.addObject("PartDesign::Fillet", "Fillet")
body.addObject(fillet)
fillet.Base = (pocket2, edges_at(pocket2, [(9.994, -9.519, 4.5)]))
fillet.Radius = 3

# Sketch on XZ plane
sketch4 = doc.addObject("Sketcher::SketchObject", "Sketch003")
body.addObject(sketch4)
sketch4.AttachmentSupport = (doc.XZ_Plane, [""])
sketch4.MapMode = "FlatFace"
sketch4.AttachmentOffset = App.Placement(V(0, 0, -20.581186), App.Rotation())
sketch4.addGeometry(Part.Circle(V(-2, 0, 0), V(0, 0, 1), 2.2), False)
sketch4.addConstraint([
    Sketcher.Constraint("PointOnObject", 0, 3, -1),
    Sketcher.Constraint("Diameter", 0, Q("4.4 mm")),
    Sketcher.Constraint("DistanceX", 0, 3, -1, 1, Q("2.006088 mm")),
])
pocket3 = doc.addObject("PartDesign::Pocket", "Pocket002")
body.addObject(pocket3)
pocket3.Profile = sketch4
pocket3.Type = "UpToFirst"
pocket3.Reversed = True

# Sketch on XZ plane
sketch5 = doc.addObject("Sketcher::SketchObject", "Sketch004")
body.addObject(sketch5)
sketch5.AttachmentSupport = (doc.XZ_Plane, [""])
sketch5.MapMode = "FlatFace"
sketch5.AttachmentOffset = App.Placement(V(0, 0, -28.531186), App.Rotation())
sketch5.addGeometry(Part.Circle(V(-2, 0, 0), V(0, 0, 1), 3.5), False)
sketch5.addConstraint([
    Sketcher.Constraint("Diameter", 0, Q("7 mm")),
    Sketcher.Constraint("DistanceX", 0, 3, -1, 1, Q("2.017786 mm")),
    Sketcher.Constraint("DistanceY", -1, 1, 0, 3, Q("0.014313 mm")),
])
pocket4 = doc.addObject("PartDesign::Pocket", "Pocket003")
body.addObject(pocket4)
pocket4.Profile = sketch5
pocket4.Length = 1.7
pocket4.Reversed = True

# Sketch on XZ plane
sketch6 = doc.addObject("Sketcher::SketchObject", "Sketch005")
body.addObject(sketch6)
sketch6.AttachmentSupport = (doc.XZ_Plane, [""])
sketch6.MapMode = "FlatFace"
sketch6.AttachmentOffset = App.Placement(V(0, 0, -19.831186), App.Rotation())
sketch6.addGeometry(Part.Circle(V(15, 0, 0), V(0, 0, 1), 3.5), False)
sketch6.addConstraint([
    Sketcher.Constraint("PointOnObject", 0, 3, -1),
    Sketcher.Constraint("Diameter", 0, Q("7 mm")),
    Sketcher.Constraint("DistanceX", -1, 1, 0, 3, Q("14.993912 mm")),
])
pocket5 = doc.addObject("PartDesign::Pocket", "Pocket004")
body.addObject(pocket5)
pocket5.Profile = sketch6
pocket5.Length = 5
pocket5.Reversed = True

# Sketch on XY plane
sketch7 = doc.addObject("Sketcher::SketchObject", "Sketch006")
body.addObject(sketch7)
sketch7.AttachmentSupport = (doc.XY_Plane, [""])
sketch7.MapMode = "FlatFace"
sketch7.AttachmentOffset = App.Placement(V(0, 0, 9), App.Rotation())
add_polygon(sketch7, [(1.9, 32.1), (1.9, 30.3), (-6.1, 30.3), (-6.1, 32.1)])  # lines 0-3
sketch7.addConstraint([
    Sketcher.Constraint("Vertical", 0),
    Sketcher.Constraint("Horizontal", 1),
    Sketcher.Constraint("Vertical", 2),
    Sketcher.Constraint("Horizontal", 3),
    Sketcher.Constraint("DistanceY", 0, 2, 0, 1, Q("1.8 mm")),
    Sketcher.Constraint("DistanceX", 1, 2, 1, 1, Q("8.040924 mm")),
    Sketcher.Constraint("DistanceX", -1, 1, 0, 2, Q("1.942979 mm")),
    Sketcher.Constraint("DistanceY", -1, 1, 0, 2, Q("30.281186 mm")),
])
pocket6 = doc.addObject("PartDesign::Pocket", "Pocket005")
body.addObject(pocket6)
pocket6.Profile = sketch7
pocket6.Length = 1
pocket6.Reversed = True

# Sketch on XY plane
sketch8 = doc.addObject("Sketcher::SketchObject", "Sketch007")
body.addObject(sketch8)
sketch8.AttachmentSupport = (doc.XY_Plane, [""])
sketch8.MapMode = "FlatFace"
sketch8.AttachmentOffset = App.Placement(V(0, 0, 10), App.Rotation())
add_polygon(sketch8, [(26.7, 26.7), (26.7, 23.2), (2.5, 23.2), (2.5, 26.7)])  # lines 0-3
sketch8.addConstraint([
    Sketcher.Constraint("Vertical", 0),
    Sketcher.Constraint("Horizontal", 1),
    Sketcher.Constraint("Vertical", 2),
    Sketcher.Constraint("Horizontal", 3),
    Sketcher.Constraint("DistanceY", 0, 2, 0, 1, Q("3.5 mm")),
    Sketcher.Constraint("DistanceX", 1, 2, 1, 1, Q("24.177828 mm")),
    Sketcher.Constraint("DistanceY", -1, 1, 0, 2, Q("23.242571 mm")),
    Sketcher.Constraint("DistanceX", -1, 1, 0, 2, Q("26.696605 mm")),
])
pocket7 = doc.addObject("PartDesign::Pocket", "Pocket006")
body.addObject(pocket7)
pocket7.Profile = sketch8
pocket7.Type = "ThroughAll"
pocket7.Midplane = True

# Sketch on XZ plane
sketch9 = doc.addObject("Sketcher::SketchObject", "Sketch008")
body.addObject(sketch9)
sketch9.AttachmentSupport = (doc.XZ_Plane, [""])
sketch9.MapMode = "FlatFace"
sketch9.AttachmentOffset = App.Placement(V(0, 0, -5.881186), App.Rotation())
sketch9.addGeometry([
    Part.LineSegment(V(20, 0, 0), V(7, 0, 0)),
    Part.LineSegment(V(7, 0, 0), V(7, 5, 0)),
    Part.LineSegment(V(7, 5, 0), V(15, 5, 0)),
    Part.ArcOfCircle(Part.Circle(V(15, 0, 0), V(0, 0, 1), 5), math.radians(0), math.radians(90)),
], False)
sketch9.addConstraint([
    Sketcher.Constraint("Coincident", 0, 2, 1, 1),
    Sketcher.Constraint("Coincident", 1, 2, 2, 1),
    Sketcher.Constraint("Tangent", 2, 2, 3, 2),
    Sketcher.Constraint("Coincident", 3, 1, 0, 1),
    Sketcher.Constraint("Horizontal", 0),
    Sketcher.Constraint("Vertical", 1),
    Sketcher.Constraint("Horizontal", 2),
    Sketcher.Constraint("PointOnObject", 3, 3, -1),
    Sketcher.Constraint("PointOnObject", 0, 2, -1),
    Sketcher.Constraint("Radius", 3, Q("5 mm")),
    Sketcher.Constraint("DistanceX", 0, 2, 0, 1, Q("13 mm")),
    Sketcher.Constraint("DistanceX", -1, 1, 3, 3, Q("14.993912 mm")),
])
pocket8 = doc.addObject("PartDesign::Pocket", "Pocket007")
body.addObject(pocket8)
pocket8.Profile = sketch9
pocket8.Type = "UpToFirst"
pocket8.Reversed = True

# Sketch on XZ plane
sketch10 = doc.addObject("Sketcher::SketchObject", "Sketch009")
body.addObject(sketch10)
sketch10.AttachmentSupport = (doc.XZ_Plane, [""])
sketch10.MapMode = "FlatFace"
sketch10.AttachmentOffset = App.Placement(V(0, 0, -0.581186), App.Rotation())
sketch10.addGeometry(Part.Circle(V(30, -0.1, 0), V(0, 0, 1), 4), False)
sketch10.addConstraint([
    Sketcher.Constraint("Diameter", 0, Q("8 mm")),
    Sketcher.Constraint("DistanceX", -1, 1, 0, 3, Q("29.993542 mm")),
    Sketcher.Constraint("DistanceY", 0, 3, -1, 1, Q("0.105465 mm")),
])
pocket9 = doc.addObject("PartDesign::Pocket", "Pocket008")
body.addObject(pocket9)
pocket9.Profile = sketch10
pocket9.Length = 2
pocket9.Reversed = True

# Sketch on XZ plane
sketch11 = doc.addObject("Sketcher::SketchObject", "Sketch010")
body.addObject(sketch11)
sketch11.AttachmentSupport = (doc.XZ_Plane, [""])
sketch11.MapMode = "FlatFace"
sketch11.AttachmentOffset = App.Placement(V(0, 0, 1.418814), App.Rotation())
sketch11.addGeometry(Part.Circle(V(30, 0, 0), V(0, 0, 1), 12), False)
sketch11.addConstraint([
    Sketcher.Constraint("Diameter", 0, Q("24.2 mm")),
    Sketcher.Constraint("DistanceX", -1, 1, 0, 3, Q("29.993542 mm")),
    Sketcher.Constraint("DistanceY", 0, 3, -1, 1, Q("0.105465 mm")),
])
pocket10 = doc.addObject("PartDesign::Pocket", "Pocket009")
body.addObject(pocket10)
pocket10.Profile = sketch11
pocket10.Type = "ThroughAll"
pocket10.Reversed = True

# Sketch on XZ plane
sketch12 = doc.addObject("Sketcher::SketchObject", "Sketch011")
body.addObject(sketch12)
sketch12.AttachmentSupport = (doc.XZ_Plane, [""])
sketch12.MapMode = "FlatFace"
sketch12.AttachmentOffset = App.Placement(V(0, 0, -26.831186), App.Rotation())
sketch12.addGeometry(Part.Circle(V(15, 0, 0), V(0, 0, 1), 1.5), False)
sketch12.addConstraint([
    Sketcher.Constraint("PointOnObject", 0, 3, -1),
    Sketcher.Constraint("Diameter", 0, Q("3 mm")),
    Sketcher.Constraint("DistanceX", -1, 1, 0, 3, Q("14.993912 mm")),
])
pocket11 = doc.addObject("PartDesign::Pocket", "Pocket010")
body.addObject(pocket11)
pocket11.Profile = sketch12
pocket11.Type = "TwoLengths"
pocket11.Length = 38
pocket11.Length2 = 1
pocket11.Reversed = True

# Sketch on XZ plane
sketch13 = doc.addObject("Sketcher::SketchObject", "Sketch012")
body.addObject(sketch13)
sketch13.AttachmentSupport = (doc.XZ_Plane, [""])
sketch13.MapMode = "FlatFace"
sketch13.AttachmentOffset = App.Placement(V(0, 0, -17.831186), App.Rotation())
sketch13.addGeometry(Part.Circle(V(24, 0, 0), V(0, 0, 1), 1.5), False)
sketch13.addConstraint([
    Sketcher.Constraint("PointOnObject", 0, 3, -1),
    Sketcher.Constraint("Diameter", 0, Q("3 mm")),
    Sketcher.Constraint("DistanceX", -1, 1, 0, 3, Q("23.993912 mm")),
])
pocket12 = doc.addObject("PartDesign::Pocket", "Pocket011")
body.addObject(pocket12)
pocket12.Profile = sketch13
pocket12.Type = "TwoLengths"
pocket12.Length = 13
pocket12.Length2 = 1.2
pocket12.Reversed = True

doc.recompute()
